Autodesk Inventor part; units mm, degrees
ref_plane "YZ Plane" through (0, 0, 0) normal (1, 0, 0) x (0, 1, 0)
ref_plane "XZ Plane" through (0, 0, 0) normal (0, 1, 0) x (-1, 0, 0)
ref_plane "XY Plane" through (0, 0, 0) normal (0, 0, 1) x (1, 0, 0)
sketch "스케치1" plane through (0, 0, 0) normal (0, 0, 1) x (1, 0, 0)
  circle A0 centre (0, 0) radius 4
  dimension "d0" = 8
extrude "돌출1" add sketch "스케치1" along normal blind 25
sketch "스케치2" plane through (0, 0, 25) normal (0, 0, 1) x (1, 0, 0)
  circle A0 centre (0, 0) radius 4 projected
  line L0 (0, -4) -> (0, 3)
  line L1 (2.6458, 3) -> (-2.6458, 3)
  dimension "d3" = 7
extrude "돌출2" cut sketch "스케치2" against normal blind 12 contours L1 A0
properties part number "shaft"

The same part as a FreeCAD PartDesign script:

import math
import FreeCAD as App
import Part
import Sketcher

doc = App.newDocument("Part")
body = doc.addObject("PartDesign::Body", "Body")

sketch1 = doc.addObject("Sketcher::SketchObject", "Sketch")
body.addObject(sketch1)
sketch1.AttachmentSupport = (doc.XY_Plane, [""])
sketch1.MapMode = "FlatFace"
sketch1.addGeometry(Part.Circle(App.Vector(0, 0, 0), App.Vector(0, 0, 1), 4), False)
sketch1.addConstraint([
    Sketcher.Constraint("Coincident", 0, 3, -1, 1),
    Sketcher.Constraint("Diameter", 0, 8.0),
])
pad1 = doc.addObject("PartDesign::Pad", "Pad")
body.addObject(pad1)
pad1.Profile = sketch1
pad1.Length = 25

sketch2 = doc.addObject("Sketcher::SketchObject", "Sketch001")
body.addObject(sketch2)
sketch2.AttachmentSupport = (doc.XY_Plane, [""])
sketch2.MapMode = "FlatFace"
sketch2.AttachmentOffset = App.Placement(App.Vector(0, 0, 25), App.Rotation())
sketch2.addGeometry([
    Part.LineSegment(App.Vector(-2.6, 3, 0), App.Vector(2.6, 3, 0)),
    Part.ArcOfCircle(Part.Circle(App.Vector(0, 0, 0), App.Vector(0, 0, 1), 4), math.radians(49), math.radians(131)),
], False)
sketch2.addConstraint([
    Sketcher.Constraint("Coincident", 0, 1, 1, 2),
    Sketcher.Constraint("Coincident", 1, 1, 0, 2),
    Sketcher.Constraint("Horizontal", 0),
    Sketcher.Constraint("Coincident", 1, 3, -1, 1),
    Sketcher.Constraint("Radius", 1, 4.0),
    Sketcher.Constraint("DistanceY", -1, 1, 0, 1, 3.0),
])
pocket1 = doc.addObject("PartDesign::Pocket", "Pocket")
body.addObject(pocket1)
pocket1.Profile = sketch2
pocket1.Length = 12

doc.recompute()
